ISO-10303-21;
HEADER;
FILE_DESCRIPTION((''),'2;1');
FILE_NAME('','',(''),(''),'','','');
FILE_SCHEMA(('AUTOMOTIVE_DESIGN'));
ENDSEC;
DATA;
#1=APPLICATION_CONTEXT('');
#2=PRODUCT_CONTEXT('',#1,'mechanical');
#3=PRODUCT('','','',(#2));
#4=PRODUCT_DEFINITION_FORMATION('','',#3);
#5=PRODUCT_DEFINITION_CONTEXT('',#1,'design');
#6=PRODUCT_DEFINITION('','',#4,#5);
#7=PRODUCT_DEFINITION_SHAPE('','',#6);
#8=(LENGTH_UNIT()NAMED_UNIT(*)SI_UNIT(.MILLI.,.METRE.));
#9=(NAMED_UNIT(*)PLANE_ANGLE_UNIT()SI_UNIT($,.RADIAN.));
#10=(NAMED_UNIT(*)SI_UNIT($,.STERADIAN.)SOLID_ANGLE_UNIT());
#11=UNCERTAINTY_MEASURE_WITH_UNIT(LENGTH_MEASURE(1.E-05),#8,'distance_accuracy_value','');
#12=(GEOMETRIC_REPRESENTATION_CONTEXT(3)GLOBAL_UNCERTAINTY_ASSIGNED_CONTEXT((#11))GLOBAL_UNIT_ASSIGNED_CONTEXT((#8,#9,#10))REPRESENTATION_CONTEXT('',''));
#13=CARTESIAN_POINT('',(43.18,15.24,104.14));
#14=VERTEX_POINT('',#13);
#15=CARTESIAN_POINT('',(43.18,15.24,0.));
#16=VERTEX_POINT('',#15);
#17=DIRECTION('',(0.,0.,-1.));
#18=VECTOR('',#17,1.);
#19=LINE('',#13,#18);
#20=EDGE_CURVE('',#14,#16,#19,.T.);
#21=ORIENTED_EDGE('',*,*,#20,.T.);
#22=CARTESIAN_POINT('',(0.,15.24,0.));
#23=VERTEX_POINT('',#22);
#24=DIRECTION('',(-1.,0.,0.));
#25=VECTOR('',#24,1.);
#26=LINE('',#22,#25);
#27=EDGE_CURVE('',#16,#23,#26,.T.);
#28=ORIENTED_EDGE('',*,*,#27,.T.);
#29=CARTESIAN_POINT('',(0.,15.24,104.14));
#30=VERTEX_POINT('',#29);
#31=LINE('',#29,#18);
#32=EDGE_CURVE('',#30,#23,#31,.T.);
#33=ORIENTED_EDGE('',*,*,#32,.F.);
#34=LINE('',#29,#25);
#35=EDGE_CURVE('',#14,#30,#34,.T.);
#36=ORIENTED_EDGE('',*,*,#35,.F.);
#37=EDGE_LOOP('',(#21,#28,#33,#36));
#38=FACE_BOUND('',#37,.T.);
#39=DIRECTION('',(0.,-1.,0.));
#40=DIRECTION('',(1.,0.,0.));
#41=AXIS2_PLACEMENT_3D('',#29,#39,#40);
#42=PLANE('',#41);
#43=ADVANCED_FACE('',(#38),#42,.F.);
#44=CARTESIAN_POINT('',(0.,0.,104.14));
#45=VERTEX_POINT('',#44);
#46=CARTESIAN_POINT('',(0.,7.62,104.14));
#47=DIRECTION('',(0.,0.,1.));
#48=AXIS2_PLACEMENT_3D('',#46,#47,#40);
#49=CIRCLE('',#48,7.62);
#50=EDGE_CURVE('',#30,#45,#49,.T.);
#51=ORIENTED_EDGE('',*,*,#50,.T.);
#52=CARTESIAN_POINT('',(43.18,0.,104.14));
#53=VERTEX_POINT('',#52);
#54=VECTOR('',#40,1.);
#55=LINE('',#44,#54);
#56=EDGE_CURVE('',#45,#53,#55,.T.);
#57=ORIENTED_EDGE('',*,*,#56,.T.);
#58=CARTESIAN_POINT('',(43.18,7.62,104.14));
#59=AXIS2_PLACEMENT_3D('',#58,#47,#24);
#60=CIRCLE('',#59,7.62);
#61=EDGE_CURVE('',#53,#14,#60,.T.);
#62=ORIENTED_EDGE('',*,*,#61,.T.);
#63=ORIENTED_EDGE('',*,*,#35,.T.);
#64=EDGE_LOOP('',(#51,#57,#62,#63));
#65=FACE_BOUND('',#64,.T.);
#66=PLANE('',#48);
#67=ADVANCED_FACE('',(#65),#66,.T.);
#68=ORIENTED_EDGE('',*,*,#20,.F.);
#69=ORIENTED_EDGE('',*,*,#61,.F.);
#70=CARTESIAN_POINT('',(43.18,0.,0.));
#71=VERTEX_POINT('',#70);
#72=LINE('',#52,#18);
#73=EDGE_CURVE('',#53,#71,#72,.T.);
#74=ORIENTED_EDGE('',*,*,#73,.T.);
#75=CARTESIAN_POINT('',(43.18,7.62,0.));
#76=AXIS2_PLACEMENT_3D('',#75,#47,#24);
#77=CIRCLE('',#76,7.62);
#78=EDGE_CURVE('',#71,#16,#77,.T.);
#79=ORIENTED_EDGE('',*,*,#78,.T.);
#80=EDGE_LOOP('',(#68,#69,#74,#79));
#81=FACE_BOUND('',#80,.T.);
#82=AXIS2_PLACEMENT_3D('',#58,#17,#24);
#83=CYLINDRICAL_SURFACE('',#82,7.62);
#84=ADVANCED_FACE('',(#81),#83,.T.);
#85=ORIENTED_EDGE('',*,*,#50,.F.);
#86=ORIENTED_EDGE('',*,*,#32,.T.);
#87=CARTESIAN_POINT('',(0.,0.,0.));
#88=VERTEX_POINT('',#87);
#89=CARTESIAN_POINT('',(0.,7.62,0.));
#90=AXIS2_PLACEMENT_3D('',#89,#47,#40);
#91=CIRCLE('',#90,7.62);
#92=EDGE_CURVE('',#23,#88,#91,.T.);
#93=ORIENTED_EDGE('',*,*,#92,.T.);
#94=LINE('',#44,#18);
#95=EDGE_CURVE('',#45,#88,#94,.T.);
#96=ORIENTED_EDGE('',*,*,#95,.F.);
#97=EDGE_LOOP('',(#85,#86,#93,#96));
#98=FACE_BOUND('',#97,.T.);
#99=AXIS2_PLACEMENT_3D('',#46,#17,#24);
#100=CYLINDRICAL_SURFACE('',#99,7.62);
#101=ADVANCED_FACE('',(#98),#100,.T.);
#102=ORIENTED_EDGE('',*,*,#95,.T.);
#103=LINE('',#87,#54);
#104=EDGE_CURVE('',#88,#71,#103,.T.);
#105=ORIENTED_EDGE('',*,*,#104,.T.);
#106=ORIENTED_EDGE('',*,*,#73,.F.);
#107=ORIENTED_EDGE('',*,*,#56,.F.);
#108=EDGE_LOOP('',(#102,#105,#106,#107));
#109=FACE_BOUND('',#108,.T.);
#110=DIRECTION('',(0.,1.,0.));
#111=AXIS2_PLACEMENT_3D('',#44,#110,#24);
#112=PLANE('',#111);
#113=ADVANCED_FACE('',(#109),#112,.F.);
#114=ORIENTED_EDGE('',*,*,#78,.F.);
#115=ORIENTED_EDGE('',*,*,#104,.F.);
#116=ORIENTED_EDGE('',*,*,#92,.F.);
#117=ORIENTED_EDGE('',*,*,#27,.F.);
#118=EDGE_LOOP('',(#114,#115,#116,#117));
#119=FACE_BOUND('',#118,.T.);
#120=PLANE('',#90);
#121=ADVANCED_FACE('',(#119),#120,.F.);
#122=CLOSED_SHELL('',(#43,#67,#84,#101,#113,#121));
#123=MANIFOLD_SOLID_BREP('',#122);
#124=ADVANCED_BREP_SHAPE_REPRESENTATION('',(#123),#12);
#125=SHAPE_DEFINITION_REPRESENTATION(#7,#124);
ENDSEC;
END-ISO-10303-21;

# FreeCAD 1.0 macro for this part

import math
import FreeCAD as App
import Part
import Sketcher
Q = App.Units.Quantity

doc = App.newDocument("Part")
body = doc.addObject("PartDesign::Body", "Body")

# Sketch on XY plane
sketch1 = doc.addObject("Sketcher::SketchObject", "Sketch")
body.addObject(sketch1)
sketch1.AttachmentSupport = (doc.XY_Plane, [""])
sketch1.MapMode = "FlatFace"
sketch1.addGeometry([
    Part.LineSegment(App.Vector(43, 15, 0), App.Vector(0, 15, 0)),
    Part.ArcOfCircle(Part.Circle(App.Vector(0, 8, 0), App.Vector(0, 0, 1), 8), math.radians(90), math.radians(270)),
    Part.LineSegment(App.Vector(0, 0, 0), App.Vector(43, 0, 0)),
    Part.ArcOfCircle(Part.Circle(App.Vector(43, 8, 0), App.Vector(0, 0, 1), 8), math.radians(-90), math.radians(90)),
], False)
sketch1.addConstraint([
    Sketcher.Constraint("Tangent", 0, 2, 1, 1),
    Sketcher.Constraint("Tangent", 1, 2, 2, 1),
    Sketcher.Constraint("Tangent", 2, 2, 3, 1),
    Sketcher.Constraint("Tangent", 3, 2, 0, 1),
    Sketcher.Constraint("Horizontal", 0),
    Sketcher.Constraint("Horizontal", 2),
    Sketcher.Constraint("Coincident", 1, 2, -1, 1),
    Sketcher.Constraint("Radius", 1, Q("0.3 in")),
    Sketcher.Constraint("DistanceX", 0, 2, 0, 1, Q("1.7 in")),
])
pad1 = doc.addObject("PartDesign::Pad", "Pad")
body.addObject(pad1)
pad1.Profile = sketch1
pad1.Length = Q("4.1 in")

doc.recompute()
